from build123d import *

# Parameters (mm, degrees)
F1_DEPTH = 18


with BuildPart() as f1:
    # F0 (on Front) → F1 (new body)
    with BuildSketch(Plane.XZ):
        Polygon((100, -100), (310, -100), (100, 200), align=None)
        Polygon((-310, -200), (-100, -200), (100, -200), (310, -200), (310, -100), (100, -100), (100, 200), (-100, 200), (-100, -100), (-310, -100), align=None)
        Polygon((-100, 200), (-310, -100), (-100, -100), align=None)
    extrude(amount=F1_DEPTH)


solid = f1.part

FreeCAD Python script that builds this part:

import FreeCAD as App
import Part
import Sketcher

doc = App.newDocument("Part")
body = doc.addObject("PartDesign::Body", "Body")

sketch1 = doc.addObject("Sketcher::SketchObject", "Sketch")
body.addObject(sketch1)
sketch1.AttachmentSupport = (doc.XZ_Plane, [""])
sketch1.MapMode = "FlatFace"
sketch1.addGeometry([
    Part.LineSegment(App.Vector(310, -100, 0), App.Vector(100, 200, 0)),
    Part.LineSegment(App.Vector(100, 200, 0), App.Vector(-100, 200, 0)),
    Part.LineSegment(App.Vector(-100, 200, 0), App.Vector(-310, -100, 0)),
    Part.LineSegment(App.Vector(-310, -100, 0), App.Vector(-310, -200, 0)),
    Part.LineSegment(App.Vector(-310, -200, 0), App.Vector(310, -200, 0)),
    Part.LineSegment(App.Vector(310, -200, 0), App.Vector(310, -100, 0)),
], False)
sketch1.addConstraint([
    Sketcher.Constraint("Coincident", 0, 2, 1, 1),
    Sketcher.Constraint("Coincident", 1, 2, 2, 1),
    Sketcher.Constraint("Coincident", 2, 2, 3, 1),
    Sketcher.Constraint("Coincident", 3, 2, 4, 1),
    Sketcher.Constraint("Coincident", 4, 2, 5, 1),
    Sketcher.Constraint("Coincident", 5, 2, 0, 1),
    Sketcher.Constraint("Horizontal", 1),
    Sketcher.Constraint("Vertical", 3),
    Sketcher.Constraint("Horizontal", 4),
    Sketcher.Constraint("Vertical", 5),
    Sketcher.Constraint("Symmetric", 2, 2, 5, 2, -2),
    Sketcher.Constraint("Equal", 0, 2),
    Sketcher.Constraint("DistanceX", 1, 2, 1, 1, 200.0),
    Sketcher.Constraint("DistanceX", 4, 1, 4, 2, 620.0),
    Sketcher.Constraint("DistanceY", 3, 2, 3, 1, 100.0),
    Sketcher.Constraint("DistanceY", -1, 1, 0, 2, 200.0),
    Sketcher.Constraint("DistanceY", 2, 2, -1, 1, 100.0),
])
pad1 = doc.addObject("PartDesign::Pad", "Pad")
body.addObject(pad1)
pad1.Profile = sketch1
pad1.Length = 18

doc.recompute()
